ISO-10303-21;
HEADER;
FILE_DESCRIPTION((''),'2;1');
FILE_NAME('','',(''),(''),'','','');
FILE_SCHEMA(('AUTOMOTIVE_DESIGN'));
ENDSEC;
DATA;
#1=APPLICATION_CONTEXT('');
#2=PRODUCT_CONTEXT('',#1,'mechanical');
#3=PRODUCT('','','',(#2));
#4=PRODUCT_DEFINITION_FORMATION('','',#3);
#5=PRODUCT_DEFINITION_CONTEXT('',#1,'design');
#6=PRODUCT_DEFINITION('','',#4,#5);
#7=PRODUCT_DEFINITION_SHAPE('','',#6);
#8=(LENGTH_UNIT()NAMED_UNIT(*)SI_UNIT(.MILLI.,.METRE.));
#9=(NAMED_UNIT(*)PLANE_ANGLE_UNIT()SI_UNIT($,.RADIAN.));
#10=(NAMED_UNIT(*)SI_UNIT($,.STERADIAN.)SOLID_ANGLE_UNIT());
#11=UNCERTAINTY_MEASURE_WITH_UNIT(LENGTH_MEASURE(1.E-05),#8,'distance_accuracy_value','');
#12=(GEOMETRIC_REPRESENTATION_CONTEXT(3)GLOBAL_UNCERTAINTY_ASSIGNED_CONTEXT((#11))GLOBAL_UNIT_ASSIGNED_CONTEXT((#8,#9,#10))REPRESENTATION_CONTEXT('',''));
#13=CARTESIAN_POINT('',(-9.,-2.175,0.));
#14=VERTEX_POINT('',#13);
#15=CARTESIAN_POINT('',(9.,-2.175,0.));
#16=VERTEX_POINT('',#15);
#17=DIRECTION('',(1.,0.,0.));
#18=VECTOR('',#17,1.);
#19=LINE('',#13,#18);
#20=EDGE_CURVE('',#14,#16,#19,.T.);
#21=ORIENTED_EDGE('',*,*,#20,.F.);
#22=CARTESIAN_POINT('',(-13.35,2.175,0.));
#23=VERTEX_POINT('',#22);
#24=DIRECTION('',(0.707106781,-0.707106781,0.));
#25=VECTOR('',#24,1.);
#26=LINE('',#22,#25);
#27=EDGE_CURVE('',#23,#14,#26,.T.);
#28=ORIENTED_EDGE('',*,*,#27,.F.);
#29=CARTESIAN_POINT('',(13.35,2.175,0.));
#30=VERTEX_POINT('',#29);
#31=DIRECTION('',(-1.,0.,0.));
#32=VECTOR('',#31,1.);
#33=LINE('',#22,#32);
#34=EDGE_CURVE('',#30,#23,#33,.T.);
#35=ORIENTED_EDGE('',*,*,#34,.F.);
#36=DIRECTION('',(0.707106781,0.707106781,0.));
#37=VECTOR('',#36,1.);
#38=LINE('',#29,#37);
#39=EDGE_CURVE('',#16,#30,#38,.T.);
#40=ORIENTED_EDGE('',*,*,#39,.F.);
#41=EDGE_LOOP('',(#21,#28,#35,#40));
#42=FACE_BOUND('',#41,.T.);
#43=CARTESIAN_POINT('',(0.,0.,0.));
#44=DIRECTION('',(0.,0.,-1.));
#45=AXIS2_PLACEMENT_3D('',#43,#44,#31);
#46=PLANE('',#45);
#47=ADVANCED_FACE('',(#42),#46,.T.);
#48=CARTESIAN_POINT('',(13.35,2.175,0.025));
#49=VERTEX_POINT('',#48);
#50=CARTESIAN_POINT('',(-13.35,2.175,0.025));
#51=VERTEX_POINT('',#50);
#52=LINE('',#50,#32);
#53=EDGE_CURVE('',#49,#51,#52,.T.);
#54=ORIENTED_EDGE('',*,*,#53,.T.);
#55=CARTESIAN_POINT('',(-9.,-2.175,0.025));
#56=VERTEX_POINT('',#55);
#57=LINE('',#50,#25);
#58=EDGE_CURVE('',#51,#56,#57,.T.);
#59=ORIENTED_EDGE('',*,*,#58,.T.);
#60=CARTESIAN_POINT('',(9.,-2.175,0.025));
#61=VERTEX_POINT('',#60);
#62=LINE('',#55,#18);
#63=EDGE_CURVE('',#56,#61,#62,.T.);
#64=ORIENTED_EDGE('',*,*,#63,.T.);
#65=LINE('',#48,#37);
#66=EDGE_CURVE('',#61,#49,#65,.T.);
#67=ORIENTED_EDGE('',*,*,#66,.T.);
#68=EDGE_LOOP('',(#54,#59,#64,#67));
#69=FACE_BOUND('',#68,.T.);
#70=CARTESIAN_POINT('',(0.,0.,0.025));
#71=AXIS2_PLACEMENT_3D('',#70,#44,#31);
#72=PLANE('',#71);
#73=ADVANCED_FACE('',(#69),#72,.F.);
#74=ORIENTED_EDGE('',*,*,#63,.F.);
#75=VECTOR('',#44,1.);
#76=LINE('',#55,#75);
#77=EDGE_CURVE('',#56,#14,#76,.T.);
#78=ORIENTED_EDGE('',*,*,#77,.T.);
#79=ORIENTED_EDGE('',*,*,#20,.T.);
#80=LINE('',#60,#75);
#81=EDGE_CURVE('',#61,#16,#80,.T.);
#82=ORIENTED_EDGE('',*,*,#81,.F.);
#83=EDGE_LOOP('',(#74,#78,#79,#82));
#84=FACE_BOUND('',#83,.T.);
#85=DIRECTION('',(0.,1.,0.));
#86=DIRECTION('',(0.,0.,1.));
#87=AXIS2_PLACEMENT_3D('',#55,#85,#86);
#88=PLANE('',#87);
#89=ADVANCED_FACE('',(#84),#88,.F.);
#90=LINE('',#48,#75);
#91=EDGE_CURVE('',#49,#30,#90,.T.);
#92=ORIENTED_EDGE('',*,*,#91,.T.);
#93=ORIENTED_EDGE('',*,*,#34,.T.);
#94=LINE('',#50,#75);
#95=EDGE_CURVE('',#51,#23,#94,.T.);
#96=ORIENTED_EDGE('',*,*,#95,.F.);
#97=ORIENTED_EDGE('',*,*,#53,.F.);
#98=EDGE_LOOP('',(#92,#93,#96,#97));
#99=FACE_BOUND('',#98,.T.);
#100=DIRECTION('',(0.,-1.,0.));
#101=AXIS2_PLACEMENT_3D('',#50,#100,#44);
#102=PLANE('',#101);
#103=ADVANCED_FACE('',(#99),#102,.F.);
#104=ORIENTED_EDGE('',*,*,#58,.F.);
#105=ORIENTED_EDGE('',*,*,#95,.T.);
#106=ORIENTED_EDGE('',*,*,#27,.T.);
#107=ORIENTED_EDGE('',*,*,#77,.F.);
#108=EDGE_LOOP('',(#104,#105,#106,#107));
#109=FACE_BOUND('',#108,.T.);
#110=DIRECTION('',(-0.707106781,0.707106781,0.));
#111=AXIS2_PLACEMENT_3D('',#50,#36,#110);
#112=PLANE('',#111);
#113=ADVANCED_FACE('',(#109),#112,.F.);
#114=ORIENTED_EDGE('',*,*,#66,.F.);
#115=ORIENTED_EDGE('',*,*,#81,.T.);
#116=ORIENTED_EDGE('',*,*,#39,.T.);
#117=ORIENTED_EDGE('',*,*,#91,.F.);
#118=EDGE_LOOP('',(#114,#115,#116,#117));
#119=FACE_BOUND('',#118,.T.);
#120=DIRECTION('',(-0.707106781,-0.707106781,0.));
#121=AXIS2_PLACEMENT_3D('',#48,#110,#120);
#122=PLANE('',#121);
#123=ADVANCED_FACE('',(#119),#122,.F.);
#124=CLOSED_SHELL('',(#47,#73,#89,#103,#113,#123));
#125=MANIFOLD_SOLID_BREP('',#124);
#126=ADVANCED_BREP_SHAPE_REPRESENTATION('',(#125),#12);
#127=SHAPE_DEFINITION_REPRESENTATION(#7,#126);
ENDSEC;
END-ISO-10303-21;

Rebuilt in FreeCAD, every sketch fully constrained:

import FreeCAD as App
import Part
import Sketcher


def add_polygon(sketch, points):
    """Adds a closed chain of lines whose ends are joined by coincident constraints."""
    first, n = sketch.GeometryCount, len(points)
    for a, b in zip(points, points[1:] + points[:1]):
        sketch.addGeometry(Part.LineSegment(App.Vector(*a, 0), App.Vector(*b, 0)), False)
    for i in range(n):
        sketch.addConstraint(Sketcher.Constraint("Coincident", first + i, 2, first + (i + 1) % n, 1))

doc = App.newDocument("Part")
body = doc.addObject("PartDesign::Body", "Body")

# Sketch on XY plane
sketch1 = body.newObject("Sketcher::SketchObject", "Sketch")
sketch1.AttachmentSupport = (doc.getObject("XY_Plane"), [""])
sketch1.MapMode = "FlatFace"
add_polygon(sketch1, [(-13.35, 2.175), (-9, -2.175), (9, -2.175), (13.35, 2.175)])  # lines 0-3
sketch1.addConstraint(Sketcher.Constraint("Horizontal", 1))
sketch1.addConstraint(Sketcher.Constraint("Horizontal", 3))
sketch1.addConstraint(Sketcher.Constraint("Perpendicular", 0, 2))
sketch1.addConstraint(Sketcher.Constraint("Equal", 0, 2))
sketch1.addConstraint(Sketcher.Constraint("DistanceX", 1, 1, 1, 2, 18.0))
sketch1.addConstraint(Sketcher.Constraint("DistanceX", 3, 2, 3, 1, 26.7))
sketch1.addConstraint(Sketcher.Constraint("DistanceX", 0, 2, -1, 1, 9.0))
sketch1.addConstraint(Sketcher.Constraint("DistanceY", 0, 2, -1, 1, 2.175))
pad1 = body.newObject("PartDesign::Pad", "Pad")
pad1.Profile = sketch1
pad1.Length = 0.025

doc.recompute()
